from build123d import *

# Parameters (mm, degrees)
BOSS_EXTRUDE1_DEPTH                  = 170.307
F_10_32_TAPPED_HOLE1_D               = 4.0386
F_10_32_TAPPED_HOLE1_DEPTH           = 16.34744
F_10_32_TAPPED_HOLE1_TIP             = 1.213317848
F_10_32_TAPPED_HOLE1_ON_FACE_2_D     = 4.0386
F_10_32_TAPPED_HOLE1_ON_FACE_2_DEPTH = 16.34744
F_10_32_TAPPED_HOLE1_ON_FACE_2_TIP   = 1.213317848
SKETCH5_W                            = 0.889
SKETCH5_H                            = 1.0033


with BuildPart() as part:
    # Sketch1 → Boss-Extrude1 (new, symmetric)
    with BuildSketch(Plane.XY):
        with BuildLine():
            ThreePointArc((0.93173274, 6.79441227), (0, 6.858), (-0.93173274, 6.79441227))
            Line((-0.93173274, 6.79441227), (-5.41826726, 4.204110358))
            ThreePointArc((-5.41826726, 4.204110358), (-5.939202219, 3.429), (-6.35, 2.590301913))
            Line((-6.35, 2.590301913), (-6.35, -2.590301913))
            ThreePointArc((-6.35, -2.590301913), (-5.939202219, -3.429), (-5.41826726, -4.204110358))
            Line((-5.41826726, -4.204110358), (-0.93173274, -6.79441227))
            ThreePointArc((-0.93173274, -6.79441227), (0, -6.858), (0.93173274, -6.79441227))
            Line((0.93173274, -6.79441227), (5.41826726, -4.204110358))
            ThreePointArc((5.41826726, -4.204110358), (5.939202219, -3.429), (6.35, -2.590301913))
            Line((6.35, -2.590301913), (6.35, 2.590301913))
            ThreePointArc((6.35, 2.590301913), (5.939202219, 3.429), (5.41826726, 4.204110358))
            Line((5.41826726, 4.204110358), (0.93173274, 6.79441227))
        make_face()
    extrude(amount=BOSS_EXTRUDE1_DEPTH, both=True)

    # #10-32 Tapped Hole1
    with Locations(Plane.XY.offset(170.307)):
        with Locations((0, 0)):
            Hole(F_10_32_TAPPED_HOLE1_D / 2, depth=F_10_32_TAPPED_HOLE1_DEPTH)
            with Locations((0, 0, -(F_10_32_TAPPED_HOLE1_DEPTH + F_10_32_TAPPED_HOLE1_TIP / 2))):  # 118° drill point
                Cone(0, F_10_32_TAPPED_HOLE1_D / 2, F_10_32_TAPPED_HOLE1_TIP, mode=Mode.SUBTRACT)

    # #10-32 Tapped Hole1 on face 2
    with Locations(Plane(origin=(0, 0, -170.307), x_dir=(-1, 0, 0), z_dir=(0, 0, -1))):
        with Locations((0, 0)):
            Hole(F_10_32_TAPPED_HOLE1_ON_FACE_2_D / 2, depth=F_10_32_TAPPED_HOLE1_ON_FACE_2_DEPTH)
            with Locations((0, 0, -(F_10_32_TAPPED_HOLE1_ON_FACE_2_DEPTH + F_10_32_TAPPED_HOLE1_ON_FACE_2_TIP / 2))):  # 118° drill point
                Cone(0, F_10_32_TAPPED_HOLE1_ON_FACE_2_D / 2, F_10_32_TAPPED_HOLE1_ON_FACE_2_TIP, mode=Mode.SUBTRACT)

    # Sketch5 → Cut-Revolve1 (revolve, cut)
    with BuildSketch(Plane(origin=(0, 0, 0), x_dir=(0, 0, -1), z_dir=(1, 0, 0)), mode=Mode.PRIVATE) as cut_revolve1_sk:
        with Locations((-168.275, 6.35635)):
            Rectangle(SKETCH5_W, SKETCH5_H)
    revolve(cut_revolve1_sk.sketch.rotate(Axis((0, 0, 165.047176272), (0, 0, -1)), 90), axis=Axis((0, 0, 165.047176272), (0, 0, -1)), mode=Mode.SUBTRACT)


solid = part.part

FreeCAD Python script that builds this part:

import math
import FreeCAD as App
import Part
import Sketcher

V = App.Vector
Q = App.Units.Quantity


def add_polygon(sketch, points):
    """Adds a closed chain of lines whose ends are joined by coincident constraints."""
    first, n = sketch.GeometryCount, len(points)
    for a, b in zip(points, points[1:] + points[:1]):
        sketch.addGeometry(Part.LineSegment(App.Vector(*a, 0), App.Vector(*b, 0)), False)
    for i in range(n):
        sketch.addConstraint(Sketcher.Constraint("Coincident", first + i, 2, first + (i + 1) % n, 1))

doc = App.newDocument("Part")
params = doc.addObject("Spreadsheet::Sheet", "Params")
for row, (alias, value) in enumerate([
    ("sketch1_radius", "0.27 in"),
    ("pad1_length", "13.41 in"),
    ("sketch2_diameter", "0.159 in"),
    ("hole_diameter", "0.159 in"),
    ("hole_depth", "0.6436 in"),
    ("sketch3_diameter", "0.159 in"),
    ("hole2_diameter", "0.159 in"),
    ("hole2_depth", "0.6436 in"),
    ("sketch4_height", "0.035 in"),
    ("groove_angle", "360 deg"),
], start=1):
    params.set(f"A{row}", alias)
    params.set(f"B{row}", "=" + value)
    params.setAlias(f"B{row}", alias)

body = doc.addObject("PartDesign::Body", "Body")

# Sketch on XY plane
sketch1 = doc.addObject("Sketcher::SketchObject", "Sketch")
body.addObject(sketch1)
sketch1.AttachmentSupport = (doc.XY_Plane, [""])
sketch1.MapMode = "FlatFace"
sketch1.addGeometry(Part.ArcOfCircle(Part.Circle(V(0, 0, 0), V(0, 0, 1), 6.9), math.radians(82.19), math.radians(97.81)), False)
sketch1.addGeometry(Part.LineSegment(V(-0.9, 6.8, 0), V(-5.4, 4.2, 0)), False)
sketch1.addGeometry(Part.ArcOfCircle(Part.Circle(V(0, 0, 0), V(0, 0, 1), 6.9), math.radians(142.19), math.radians(157.81)), False)
sketch1.addGeometry(Part.LineSegment(V(-6.3, 2.6, 0), V(-6.3, -2.6, 0)), False)
sketch1.addGeometry(Part.ArcOfCircle(Part.Circle(V(0, 0, 0), V(0, 0, 1), 6.9), math.radians(-157.81), math.radians(-142.19)), False)
sketch1.addGeometry(Part.LineSegment(V(-5.4, -4.2, 0), V(-0.9, -6.8, 0)), False)
sketch1.addGeometry(Part.ArcOfCircle(Part.Circle(V(0, 0, 0), V(0, 0, 1), 6.9), math.radians(-97.81), math.radians(-82.19)), False)
sketch1.addGeometry(Part.LineSegment(V(0.9, -6.8, 0), V(5.4, -4.2, 0)), False)
sketch1.addGeometry(Part.ArcOfCircle(Part.Circle(V(0, 0, 0), V(0, 0, 1), 6.9), math.radians(-37.81), math.radians(-22.19)), False)
sketch1.addGeometry(Part.LineSegment(V(6.3, -2.6, 0), V(6.3, 2.6, 0)), False)
sketch1.addGeometry(Part.ArcOfCircle(Part.Circle(V(0, 0, 0), V(0, 0, 1), 6.9), math.radians(22.19), math.radians(37.81)), False)
sketch1.addGeometry(Part.LineSegment(V(5.4, 4.2, 0), V(0.9, 6.8, 0)), False)
sketch1.addConstraint(Sketcher.Constraint("Coincident", 0, 2, 1, 1))
sketch1.addConstraint(Sketcher.Constraint("Coincident", 1, 2, 2, 1))
sketch1.addConstraint(Sketcher.Constraint("Coincident", 2, 2, 3, 1))
sketch1.addConstraint(Sketcher.Constraint("Coincident", 3, 2, 4, 1))
sketch1.addConstraint(Sketcher.Constraint("Coincident", 4, 2, 5, 1))
sketch1.addConstraint(Sketcher.Constraint("Coincident", 5, 2, 6, 1))
sketch1.addConstraint(Sketcher.Constraint("Coincident", 6, 2, 7, 1))
sketch1.addConstraint(Sketcher.Constraint("Coincident", 7, 2, 8, 1))
sketch1.addConstraint(Sketcher.Constraint("Coincident", 8, 2, 9, 1))
sketch1.addConstraint(Sketcher.Constraint("Coincident", 9, 2, 10, 1))
sketch1.addConstraint(Sketcher.Constraint("Coincident", 10, 2, 11, 1))
sketch1.addConstraint(Sketcher.Constraint("Coincident", 11, 2, 0, 1))
sketch1.addConstraint(Sketcher.Constraint("Vertical", 3))
sketch1.addConstraint(Sketcher.Constraint("Vertical", 9))
sketch1.addConstraint(Sketcher.Constraint("Coincident", 0, 3, -1, 1))
sketch1.addConstraint(Sketcher.Constraint("Coincident", 2, 3, -1, 1))
sketch1.addConstraint(Sketcher.Constraint("Coincident", 4, 3, -1, 1))
sketch1.addConstraint(Sketcher.Constraint("Coincident", 6, 3, -1, 1))
sketch1.addConstraint(Sketcher.Constraint("Coincident", 8, 3, -1, 1))
sketch1.addConstraint(Sketcher.Constraint("Coincident", 10, 3, -1, 1))
sketch1.addConstraint(Sketcher.Constraint("Equal", 0, 2))
sketch1.addConstraint(Sketcher.Constraint("Equal", 2, 4))
sketch1.addConstraint(Sketcher.Constraint("Equal", 4, 6))
sketch1.addConstraint(Sketcher.Constraint("Equal", 6, 8))
sketch1.addConstraint(Sketcher.Constraint("Equal", 8, 10))
sketch1.addConstraint(Sketcher.Constraint("Parallel", 1, 7))
sketch1.addConstraint(Sketcher.Constraint("Parallel", 5, 11))
sketch1.addConstraint(Sketcher.Constraint("Horizontal", 5, 2, 6, 2))
sketch1.addConstraint(Sketcher.Constraint("Horizontal", 4, 2, 7, 2))
sketch1.addConstraint(Sketcher.Constraint("Horizontal", 3, 2, 8, 2))
sketch1.addConstraint(Sketcher.Constraint("Horizontal", 1, 2, 10, 2))
sketch1.addConstraint(Sketcher.Constraint("Vertical", 1, 2, 4, 2))
sketch1.addConstraint(Sketcher.Constraint("Radius", 0, Q("0.27 in")))
sketch1.addConstraint(Sketcher.Constraint("Angle", 1, Q("-150 deg")))
sketch1.addConstraint(Sketcher.Constraint("DistanceX", 2, 2, -1, 1, Q("0.25 in")))
sketch1.addConstraint(Sketcher.Constraint("DistanceX", 4, 2, 6, 2, Q("0.25 in")))
sketch1.setExpression("Constraints[32]", "Params.sketch1_radius")
pad1 = doc.addObject("PartDesign::Pad", "Pad")
body.addObject(pad1)
pad1.Profile = sketch1
pad1.setExpression("Length", "Params.pad1_length")
pad1.Midplane = True

# Sketch on XY plane
sketch2 = doc.addObject("Sketcher::SketchObject", "Sketch001")
body.addObject(sketch2)
sketch2.AttachmentSupport = (doc.XY_Plane, [""])
sketch2.MapMode = "FlatFace"
sketch2.AttachmentOffset = App.Placement(V(0, 0, 6.705 * 25.4), App.Rotation())
sketch2.addGeometry(Part.Circle(V(0, 0, 0), V(0, 0, 1), 2), False)
sketch2.addConstraint(Sketcher.Constraint("Coincident", 0, 3, -1, 1))
sketch2.addConstraint(Sketcher.Constraint("Diameter", 0, Q("0.159 in")))
sketch2.setExpression("Constraints[1]", "Params.sketch2_diameter")
doc.recompute()
hole = doc.addObject("PartDesign::Hole", "Hole")
body.addObject(hole)
hole.Profile = sketch2
hole.ThreadType = "None"
hole.setExpression("Diameter", "Params.hole_diameter")
hole.DepthType = "Dimension"
hole.setExpression("Depth", "Params.hole_depth")
hole.DrillPoint = "Angled"
hole.DrillPointAngle = 118

# Sketch on XY plane
sketch3 = doc.addObject("Sketcher::SketchObject", "Sketch002")
body.addObject(sketch3)
sketch3.AttachmentSupport = (doc.XY_Plane, [""])
sketch3.MapMode = "FlatFace"
sketch3.AttachmentOffset = App.Placement(V(0, 0, -6.705 * 25.4), App.Rotation())
sketch3.addGeometry(Part.Circle(V(0, 0, 0), V(0, 0, 1), 2), False)
sketch3.addConstraint(Sketcher.Constraint("Coincident", 0, 3, -1, 1))
sketch3.addConstraint(Sketcher.Constraint("Diameter", 0, Q("0.159 in")))
sketch3.setExpression("Constraints[1]", "Params.sketch3_diameter")
doc.recompute()
hole2 = doc.addObject("PartDesign::Hole", "Hole001")
body.addObject(hole2)
hole2.Profile = sketch3
hole2.ThreadType = "None"
hole2.setExpression("Diameter", "Params.hole2_diameter")
hole2.DepthType = "Dimension"
hole2.setExpression("Depth", "Params.hole2_depth")
hole2.DrillPoint = "Angled"
hole2.DrillPointAngle = 118
hole2.Reversed = True

# Sketch on YZ plane
sketch4 = doc.addObject("Sketcher::SketchObject", "Sketch003")
body.addObject(sketch4)
sketch4.AttachmentSupport = (doc.YZ_Plane, [""])
sketch4.MapMode = "FlatFace"
add_polygon(sketch4, [(6.9, 168.7), (5.9, 168.7), (5.9, 167.8), (6.9, 167.8)])  # lines 0-3
sketch4.addConstraint(Sketcher.Constraint("Horizontal", 0))
sketch4.addConstraint(Sketcher.Constraint("Vertical", 1))
sketch4.addConstraint(Sketcher.Constraint("Horizontal", 2))
sketch4.addConstraint(Sketcher.Constraint("Vertical", 3))
sketch4.addConstraint(Sketcher.Constraint("DistanceY", 1, 2, 1, 1, Q("0.035 in")))
sketch4.addConstraint(Sketcher.Constraint("DistanceX", -1, 1, 2, 2, Q("0.27 in")))
sketch4.addConstraint(Sketcher.Constraint("DistanceX", 0, 2, 0, 1, Q("0.0395 in")))
sketch4.addConstraint(Sketcher.Constraint("DistanceY", -1, 1, 0, 2, Q("6.6425 in")))
sketch4.setExpression("Constraints[8]", "Params.sketch4_height")
groove = doc.addObject("PartDesign::Groove", "Groove")
body.addObject(groove)
groove.Profile = sketch4
groove.ReferenceAxis = (sketch4, ["V_Axis"])
groove.setExpression("Angle", "Params.groove_angle")

doc.recompute()
